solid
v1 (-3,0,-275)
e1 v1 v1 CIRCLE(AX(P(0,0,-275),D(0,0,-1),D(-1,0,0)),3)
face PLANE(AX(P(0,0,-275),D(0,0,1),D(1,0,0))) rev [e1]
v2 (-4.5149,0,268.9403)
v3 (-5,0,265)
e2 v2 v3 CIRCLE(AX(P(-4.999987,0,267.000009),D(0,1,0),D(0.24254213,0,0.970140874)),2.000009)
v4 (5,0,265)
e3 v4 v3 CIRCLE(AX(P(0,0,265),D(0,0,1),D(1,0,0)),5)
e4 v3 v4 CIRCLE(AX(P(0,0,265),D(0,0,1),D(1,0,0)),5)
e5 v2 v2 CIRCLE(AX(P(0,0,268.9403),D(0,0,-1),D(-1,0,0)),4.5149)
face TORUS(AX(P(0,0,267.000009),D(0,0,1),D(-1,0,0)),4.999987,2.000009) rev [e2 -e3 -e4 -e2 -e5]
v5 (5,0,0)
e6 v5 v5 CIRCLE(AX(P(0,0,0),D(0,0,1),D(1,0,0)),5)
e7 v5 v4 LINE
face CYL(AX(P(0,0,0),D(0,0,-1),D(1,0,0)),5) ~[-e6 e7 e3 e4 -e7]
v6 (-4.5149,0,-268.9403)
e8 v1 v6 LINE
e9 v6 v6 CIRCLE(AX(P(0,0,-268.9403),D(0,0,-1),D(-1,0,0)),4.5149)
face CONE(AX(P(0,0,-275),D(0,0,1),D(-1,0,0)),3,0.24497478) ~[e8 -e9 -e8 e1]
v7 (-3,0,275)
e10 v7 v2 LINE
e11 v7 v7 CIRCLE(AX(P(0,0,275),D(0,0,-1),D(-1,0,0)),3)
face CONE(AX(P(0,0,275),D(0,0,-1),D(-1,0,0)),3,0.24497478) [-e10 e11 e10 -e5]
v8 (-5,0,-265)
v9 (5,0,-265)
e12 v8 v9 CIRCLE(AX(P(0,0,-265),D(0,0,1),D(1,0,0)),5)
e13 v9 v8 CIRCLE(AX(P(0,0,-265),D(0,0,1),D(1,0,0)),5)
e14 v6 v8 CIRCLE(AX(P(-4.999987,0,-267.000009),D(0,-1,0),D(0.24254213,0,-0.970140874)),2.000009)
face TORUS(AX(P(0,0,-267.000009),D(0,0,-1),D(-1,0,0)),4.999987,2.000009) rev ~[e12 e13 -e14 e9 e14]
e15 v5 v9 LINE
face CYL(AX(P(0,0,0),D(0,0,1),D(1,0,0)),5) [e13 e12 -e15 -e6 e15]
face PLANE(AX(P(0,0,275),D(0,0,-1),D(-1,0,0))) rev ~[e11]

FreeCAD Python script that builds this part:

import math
import FreeCAD as App
import Part
import Sketcher
from FreeCAD import Vector
Q = App.Units.Quantity

doc = App.newDocument("Part")
params = doc.addObject("Spreadsheet::Sheet", "Params")
for row, (alias, value) in enumerate([
    ("sketch1_diameter", "10 mm"),
    ("pad1_length", "530 mm"),
    ("sketch2_radius", "2 mm"),
    ("sketch2_width", "3 mm"),
    ("sketch2_width2", "5 mm"),
    ("sketch2_height", "10 mm"),
    ("revolution_angle", "360 deg"),
], start=1):
    params.set(f"A{row}", alias)
    params.set(f"B{row}", "=" + value)
    params.setAlias(f"B{row}", alias)

body = doc.addObject("PartDesign::Body", "Body")

# Sketch on XY plane
sketch1 = body.newObject("Sketcher::SketchObject", "Sketch")
sketch1.AttachmentSupport = (doc.getObject("XY_Plane"), [""])
sketch1.MapMode = "FlatFace"
sketch1.addGeometry(Part.Circle(Vector(0, 0, 0), Vector(0, 0, 1), 5), False)
sketch1.addConstraint([
    Sketcher.Constraint("Coincident", 0, 3, -1, 1),
    Sketcher.Constraint("Diameter", 0, Q("10 mm")),
])
sketch1.setExpression("Constraints[1]", "Params.sketch1_diameter")
pad1 = body.newObject("PartDesign::Pad", "Pad")
pad1.Profile = sketch1
pad1.setExpression("Length", "Params.pad1_length")
pad1.Midplane = True

# Sketch on XZ plane
sketch2 = body.newObject("Sketcher::SketchObject", "Sketch001")
sketch2.AttachmentSupport = (doc.getObject("XZ_Plane"), [""])
sketch2.MapMode = "FlatFace"
sketch2.addGeometry([
    Part.ArcOfCircle(Part.Circle(Vector(-5, 267, 0), Vector(0, 0, 1), 2.000022), math.radians(-90), math.radians(75.963062)),  # 0
    Part.LineSegment(Vector(-4.5149, 268.9403, 0), Vector(-3, 275, 0)),  # 1
    Part.LineSegment(Vector(-3, 275, 0), Vector(0, 275, 0)),  # 2
    Part.LineSegment(Vector(0, 275, 0), Vector(0, 265, 0)),  # 3
    Part.LineSegment(Vector(0, 265, 0), Vector(-5, 265, 0)),  # 4
], False)
sketch2.addConstraint([
    Sketcher.Constraint("Coincident", 0, 2, 1, 1),
    Sketcher.Constraint("Coincident", 1, 2, 2, 1),
    Sketcher.Constraint("Coincident", 2, 2, 3, 1),
    Sketcher.Constraint("Coincident", 3, 2, 4, 1),
    Sketcher.Constraint("Tangent", 4, 2, 0, 1),
    Sketcher.Constraint("Horizontal", 2),
    Sketcher.Constraint("Vertical", 3),
    Sketcher.Constraint("Horizontal", 4),
    Sketcher.Constraint("PointOnObject", 2, 2, -2),
    Sketcher.Constraint("Radius", 0, Q("2 mm")),
    Sketcher.Constraint("DistanceX", 2, 1, 2, 2, Q("3 mm")),
    Sketcher.Constraint("DistanceX", 4, 2, 4, 1, Q("5 mm")),
    Sketcher.Constraint("DistanceY", 3, 2, 3, 1, Q("10 mm")),
    Sketcher.Constraint("DistanceY", -1, 1, 0, 3, Q("267 mm")),
    Sketcher.Constraint("DistanceX", 0, 2, -1, 1, Q("4.515 mm")),
])
sketch2.setExpression("Constraints[9]", "Params.sketch2_radius")
sketch2.setExpression("Constraints[10]", "Params.sketch2_width")
sketch2.setExpression("Constraints[11]", "Params.sketch2_width2")
sketch2.setExpression("Constraints[12]", "Params.sketch2_height")
revolution = body.newObject("PartDesign::Revolution", "Revolution")
revolution.Profile = sketch2
revolution.ReferenceAxis = (sketch2, ["V_Axis"])
revolution.setExpression("Angle", "Params.revolution_angle")
doc.recompute()

mirrored = body.newObject("PartDesign::Mirrored", "Mirrored")
mirrored.Originals = [revolution]
mirrored.MirrorPlane = (doc.getObject("XY_Plane"), [""])
body.Tip = mirrored

doc.recompute()
